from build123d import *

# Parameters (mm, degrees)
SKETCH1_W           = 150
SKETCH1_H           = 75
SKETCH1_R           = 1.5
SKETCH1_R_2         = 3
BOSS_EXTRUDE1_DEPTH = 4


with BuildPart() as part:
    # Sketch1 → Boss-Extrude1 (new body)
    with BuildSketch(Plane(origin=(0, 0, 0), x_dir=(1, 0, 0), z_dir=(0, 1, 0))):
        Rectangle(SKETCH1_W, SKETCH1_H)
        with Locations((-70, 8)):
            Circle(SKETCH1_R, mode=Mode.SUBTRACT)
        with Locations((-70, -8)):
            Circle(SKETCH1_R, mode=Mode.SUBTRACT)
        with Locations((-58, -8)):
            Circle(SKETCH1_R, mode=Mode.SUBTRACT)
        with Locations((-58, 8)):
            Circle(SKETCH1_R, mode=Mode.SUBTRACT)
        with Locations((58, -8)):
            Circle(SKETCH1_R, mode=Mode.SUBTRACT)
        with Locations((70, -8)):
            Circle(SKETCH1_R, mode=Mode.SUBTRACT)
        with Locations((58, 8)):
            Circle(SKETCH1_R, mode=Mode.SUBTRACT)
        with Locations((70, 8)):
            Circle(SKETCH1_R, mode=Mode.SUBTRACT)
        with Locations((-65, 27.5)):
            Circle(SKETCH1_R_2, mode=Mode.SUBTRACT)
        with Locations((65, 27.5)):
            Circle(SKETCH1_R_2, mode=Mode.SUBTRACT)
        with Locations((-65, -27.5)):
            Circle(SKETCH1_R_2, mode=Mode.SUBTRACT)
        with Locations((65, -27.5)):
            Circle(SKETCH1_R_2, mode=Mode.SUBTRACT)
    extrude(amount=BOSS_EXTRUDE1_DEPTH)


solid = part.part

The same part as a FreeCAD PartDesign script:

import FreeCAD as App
import Part
import Sketcher

V = App.Vector
Q = App.Units.Quantity


def add_polygon(sketch, points):
    """Adds a closed chain of lines whose ends are joined by coincident constraints."""
    first, n = sketch.GeometryCount, len(points)
    for a, b in zip(points, points[1:] + points[:1]):
        sketch.addGeometry(Part.LineSegment(App.Vector(*a, 0), App.Vector(*b, 0)), False)
    for i in range(n):
        sketch.addConstraint(Sketcher.Constraint("Coincident", first + i, 2, first + (i + 1) % n, 1))

doc = App.newDocument("Part")
body = doc.addObject("PartDesign::Body", "Body")

# Sketch on XZ plane
sketch1 = doc.addObject("Sketcher::SketchObject", "Sketch")
body.addObject(sketch1)
sketch1.AttachmentSupport = (doc.XZ_Plane, [""])
sketch1.MapMode = "FlatFace"
add_polygon(sketch1, [(-75, -37.5), (-75, 37.5), (75, 37.5), (75, -37.5)])  # lines 0-3
sketch1.addGeometry(Part.Circle(V(-65, 27.5, 0), V(0, 0, 1), 3), False)  # 4
sketch1.addGeometry(Part.Circle(V(-70, 8, 0), V(0, 0, 1), 1.5), False)  # 5
sketch1.addGeometry(Part.Circle(V(-58, 8, 0), V(0, 0, 1), 1.5), False)  # 6
sketch1.addGeometry(Part.Circle(V(65, 27.5, 0), V(0, 0, 1), 3), False)  # 7
sketch1.addGeometry(Part.Circle(V(58, 8, 0), V(0, 0, 1), 1.5), False)  # 8
sketch1.addGeometry(Part.Circle(V(70, 8, 0), V(0, 0, 1), 1.5), False)  # 9
sketch1.addGeometry(Part.Circle(V(-70, -8, 0), V(0, 0, 1), 1.5), False)  # 10
sketch1.addGeometry(Part.Circle(V(-58, -8, 0), V(0, 0, 1), 1.5), False)  # 11
sketch1.addGeometry(Part.Circle(V(-65, -27.5, 0), V(0, 0, 1), 3), False)  # 12
sketch1.addGeometry(Part.Circle(V(58, -8, 0), V(0, 0, 1), 1.5), False)  # 13
sketch1.addGeometry(Part.Circle(V(70, -8, 0), V(0, 0, 1), 1.5), False)  # 14
sketch1.addGeometry(Part.Circle(V(65, -27.5, 0), V(0, 0, 1), 3), False)  # 15
sketch1.addConstraint([
    Sketcher.Constraint("Vertical", 0),
    Sketcher.Constraint("Horizontal", 1),
    Sketcher.Constraint("Vertical", 2),
    Sketcher.Constraint("Horizontal", 3),
    Sketcher.Constraint("Equal", 5, 6),
    Sketcher.Constraint("Equal", 4, 7),
    Sketcher.Constraint("Equal", 6, 8),
    Sketcher.Constraint("Equal", 8, 9),
    Sketcher.Constraint("Equal", 9, 10),
    Sketcher.Constraint("Equal", 10, 11),
    Sketcher.Constraint("Equal", 7, 12),
    Sketcher.Constraint("Equal", 11, 13),
    Sketcher.Constraint("Equal", 13, 14),
    Sketcher.Constraint("Equal", 12, 15),
    Sketcher.Constraint("Symmetric", 9, 3, 10, 3, -1, 1),
    Sketcher.Constraint("Symmetric", 8, 3, 11, 3, -1, 1),
    Sketcher.Constraint("Symmetric", 7, 3, 12, 3, -1, 1),
    Sketcher.Constraint("Symmetric", 6, 3, 13, 3, -1, 1),
    Sketcher.Constraint("Symmetric", 5, 3, 14, 3, -1, 1),
    Sketcher.Constraint("Symmetric", 4, 3, 15, 3, -1, 1),
    Sketcher.Constraint("Symmetric", 0, 2, 2, 2, -1, 1),
    Sketcher.Constraint("Symmetric", 4, 3, 7, 3, -2),
    Sketcher.Constraint("Symmetric", 6, 3, 8, 3, -2),
    Sketcher.Constraint("Symmetric", 5, 3, 9, 3, -2),
    Sketcher.Constraint("Horizontal", 5, 3, 6, 3),
    Sketcher.Constraint("Diameter", 4, Q("6 mm")),
    Sketcher.Constraint("Diameter", 5, Q("3 mm")),
    Sketcher.Constraint("DistanceX", 1, 1, 1, 2, Q("150 mm")),
    Sketcher.Constraint("DistanceY", 0, 1, 0, 2, Q("75 mm")),
    Sketcher.Constraint("DistanceX", 4, 3, -1, 1, Q("65 mm")),
    Sketcher.Constraint("DistanceX", 5, 3, -1, 1, Q("70 mm")),
    Sketcher.Constraint("DistanceY", -1, 1, 5, 3, Q("8 mm")),
    Sketcher.Constraint("DistanceX", 6, 3, -1, 1, Q("58 mm")),
    Sketcher.Constraint("DistanceY", 12, 3, 4, 3, Q("55 mm")),
])
pad1 = doc.addObject("PartDesign::Pad", "Pad")
body.addObject(pad1)
pad1.Profile = sketch1
pad1.Length = 4
pad1.Reversed = True

doc.recompute()
